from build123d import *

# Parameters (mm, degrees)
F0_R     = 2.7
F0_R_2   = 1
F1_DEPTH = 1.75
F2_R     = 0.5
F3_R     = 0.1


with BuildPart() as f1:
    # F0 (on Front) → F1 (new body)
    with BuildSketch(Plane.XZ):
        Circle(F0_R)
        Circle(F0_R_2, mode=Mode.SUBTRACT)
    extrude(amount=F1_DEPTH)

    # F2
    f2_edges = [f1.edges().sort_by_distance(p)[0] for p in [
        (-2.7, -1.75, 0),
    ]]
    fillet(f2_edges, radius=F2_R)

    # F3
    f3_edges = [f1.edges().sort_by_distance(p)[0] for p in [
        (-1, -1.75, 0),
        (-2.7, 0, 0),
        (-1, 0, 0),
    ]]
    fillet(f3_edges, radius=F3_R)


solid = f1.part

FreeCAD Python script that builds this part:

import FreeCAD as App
import Part
import Sketcher
from FreeCAD import Vector


def edges_at(feature, points):
    """Names of the edges that pass closest to the given points."""
    edges = feature.Shape.Edges
    near = lambda p: min(range(len(edges)), key=lambda i: edges[i].distToShape(Part.Vertex(*p))[0])
    return sorted({f"Edge{near(p) + 1}" for p in points})

doc = App.newDocument("Part")
body = doc.addObject("PartDesign::Body", "Body")

# Sketch on XZ plane
sketch1 = body.newObject("Sketcher::SketchObject", "Sketch")
sketch1.AttachmentSupport = (doc.getObject("XZ_Plane"), [""])
sketch1.MapMode = "FlatFace"
sketch1.addGeometry([
    Part.Circle(Vector(0, 0, 0), Vector(0, 0, 1), 2.7),
    Part.Circle(Vector(0, 0, 0), Vector(0, 0, 1), 1),
], False)
sketch1.addConstraint([
    Sketcher.Constraint("Coincident", 0, 3, -1, 1),
    Sketcher.Constraint("Coincident", 1, 3, -1, 1),
    Sketcher.Constraint("Diameter", 1, 2.0),
    Sketcher.Constraint("Diameter", 0, 5.4),
])
pad1 = body.newObject("PartDesign::Pad", "Pad")
pad1.Profile = sketch1
pad1.Length = 1.75
doc.recompute()

fillet = body.newObject("PartDesign::Fillet", "Fillet")
fillet.Base = (pad1, edges_at(pad1, [(-2.7, -1.75, 0)]))
fillet.Radius = 0.5
doc.recompute()

fillet2 = body.newObject("PartDesign::Fillet", "Fillet001")
fillet2.Base = (fillet, edges_at(fillet, [(-1, -1.75, 0), (-2.7, 0, 0), (-1, 0, 0)]))
fillet2.Radius = 0.1

doc.recompute()
